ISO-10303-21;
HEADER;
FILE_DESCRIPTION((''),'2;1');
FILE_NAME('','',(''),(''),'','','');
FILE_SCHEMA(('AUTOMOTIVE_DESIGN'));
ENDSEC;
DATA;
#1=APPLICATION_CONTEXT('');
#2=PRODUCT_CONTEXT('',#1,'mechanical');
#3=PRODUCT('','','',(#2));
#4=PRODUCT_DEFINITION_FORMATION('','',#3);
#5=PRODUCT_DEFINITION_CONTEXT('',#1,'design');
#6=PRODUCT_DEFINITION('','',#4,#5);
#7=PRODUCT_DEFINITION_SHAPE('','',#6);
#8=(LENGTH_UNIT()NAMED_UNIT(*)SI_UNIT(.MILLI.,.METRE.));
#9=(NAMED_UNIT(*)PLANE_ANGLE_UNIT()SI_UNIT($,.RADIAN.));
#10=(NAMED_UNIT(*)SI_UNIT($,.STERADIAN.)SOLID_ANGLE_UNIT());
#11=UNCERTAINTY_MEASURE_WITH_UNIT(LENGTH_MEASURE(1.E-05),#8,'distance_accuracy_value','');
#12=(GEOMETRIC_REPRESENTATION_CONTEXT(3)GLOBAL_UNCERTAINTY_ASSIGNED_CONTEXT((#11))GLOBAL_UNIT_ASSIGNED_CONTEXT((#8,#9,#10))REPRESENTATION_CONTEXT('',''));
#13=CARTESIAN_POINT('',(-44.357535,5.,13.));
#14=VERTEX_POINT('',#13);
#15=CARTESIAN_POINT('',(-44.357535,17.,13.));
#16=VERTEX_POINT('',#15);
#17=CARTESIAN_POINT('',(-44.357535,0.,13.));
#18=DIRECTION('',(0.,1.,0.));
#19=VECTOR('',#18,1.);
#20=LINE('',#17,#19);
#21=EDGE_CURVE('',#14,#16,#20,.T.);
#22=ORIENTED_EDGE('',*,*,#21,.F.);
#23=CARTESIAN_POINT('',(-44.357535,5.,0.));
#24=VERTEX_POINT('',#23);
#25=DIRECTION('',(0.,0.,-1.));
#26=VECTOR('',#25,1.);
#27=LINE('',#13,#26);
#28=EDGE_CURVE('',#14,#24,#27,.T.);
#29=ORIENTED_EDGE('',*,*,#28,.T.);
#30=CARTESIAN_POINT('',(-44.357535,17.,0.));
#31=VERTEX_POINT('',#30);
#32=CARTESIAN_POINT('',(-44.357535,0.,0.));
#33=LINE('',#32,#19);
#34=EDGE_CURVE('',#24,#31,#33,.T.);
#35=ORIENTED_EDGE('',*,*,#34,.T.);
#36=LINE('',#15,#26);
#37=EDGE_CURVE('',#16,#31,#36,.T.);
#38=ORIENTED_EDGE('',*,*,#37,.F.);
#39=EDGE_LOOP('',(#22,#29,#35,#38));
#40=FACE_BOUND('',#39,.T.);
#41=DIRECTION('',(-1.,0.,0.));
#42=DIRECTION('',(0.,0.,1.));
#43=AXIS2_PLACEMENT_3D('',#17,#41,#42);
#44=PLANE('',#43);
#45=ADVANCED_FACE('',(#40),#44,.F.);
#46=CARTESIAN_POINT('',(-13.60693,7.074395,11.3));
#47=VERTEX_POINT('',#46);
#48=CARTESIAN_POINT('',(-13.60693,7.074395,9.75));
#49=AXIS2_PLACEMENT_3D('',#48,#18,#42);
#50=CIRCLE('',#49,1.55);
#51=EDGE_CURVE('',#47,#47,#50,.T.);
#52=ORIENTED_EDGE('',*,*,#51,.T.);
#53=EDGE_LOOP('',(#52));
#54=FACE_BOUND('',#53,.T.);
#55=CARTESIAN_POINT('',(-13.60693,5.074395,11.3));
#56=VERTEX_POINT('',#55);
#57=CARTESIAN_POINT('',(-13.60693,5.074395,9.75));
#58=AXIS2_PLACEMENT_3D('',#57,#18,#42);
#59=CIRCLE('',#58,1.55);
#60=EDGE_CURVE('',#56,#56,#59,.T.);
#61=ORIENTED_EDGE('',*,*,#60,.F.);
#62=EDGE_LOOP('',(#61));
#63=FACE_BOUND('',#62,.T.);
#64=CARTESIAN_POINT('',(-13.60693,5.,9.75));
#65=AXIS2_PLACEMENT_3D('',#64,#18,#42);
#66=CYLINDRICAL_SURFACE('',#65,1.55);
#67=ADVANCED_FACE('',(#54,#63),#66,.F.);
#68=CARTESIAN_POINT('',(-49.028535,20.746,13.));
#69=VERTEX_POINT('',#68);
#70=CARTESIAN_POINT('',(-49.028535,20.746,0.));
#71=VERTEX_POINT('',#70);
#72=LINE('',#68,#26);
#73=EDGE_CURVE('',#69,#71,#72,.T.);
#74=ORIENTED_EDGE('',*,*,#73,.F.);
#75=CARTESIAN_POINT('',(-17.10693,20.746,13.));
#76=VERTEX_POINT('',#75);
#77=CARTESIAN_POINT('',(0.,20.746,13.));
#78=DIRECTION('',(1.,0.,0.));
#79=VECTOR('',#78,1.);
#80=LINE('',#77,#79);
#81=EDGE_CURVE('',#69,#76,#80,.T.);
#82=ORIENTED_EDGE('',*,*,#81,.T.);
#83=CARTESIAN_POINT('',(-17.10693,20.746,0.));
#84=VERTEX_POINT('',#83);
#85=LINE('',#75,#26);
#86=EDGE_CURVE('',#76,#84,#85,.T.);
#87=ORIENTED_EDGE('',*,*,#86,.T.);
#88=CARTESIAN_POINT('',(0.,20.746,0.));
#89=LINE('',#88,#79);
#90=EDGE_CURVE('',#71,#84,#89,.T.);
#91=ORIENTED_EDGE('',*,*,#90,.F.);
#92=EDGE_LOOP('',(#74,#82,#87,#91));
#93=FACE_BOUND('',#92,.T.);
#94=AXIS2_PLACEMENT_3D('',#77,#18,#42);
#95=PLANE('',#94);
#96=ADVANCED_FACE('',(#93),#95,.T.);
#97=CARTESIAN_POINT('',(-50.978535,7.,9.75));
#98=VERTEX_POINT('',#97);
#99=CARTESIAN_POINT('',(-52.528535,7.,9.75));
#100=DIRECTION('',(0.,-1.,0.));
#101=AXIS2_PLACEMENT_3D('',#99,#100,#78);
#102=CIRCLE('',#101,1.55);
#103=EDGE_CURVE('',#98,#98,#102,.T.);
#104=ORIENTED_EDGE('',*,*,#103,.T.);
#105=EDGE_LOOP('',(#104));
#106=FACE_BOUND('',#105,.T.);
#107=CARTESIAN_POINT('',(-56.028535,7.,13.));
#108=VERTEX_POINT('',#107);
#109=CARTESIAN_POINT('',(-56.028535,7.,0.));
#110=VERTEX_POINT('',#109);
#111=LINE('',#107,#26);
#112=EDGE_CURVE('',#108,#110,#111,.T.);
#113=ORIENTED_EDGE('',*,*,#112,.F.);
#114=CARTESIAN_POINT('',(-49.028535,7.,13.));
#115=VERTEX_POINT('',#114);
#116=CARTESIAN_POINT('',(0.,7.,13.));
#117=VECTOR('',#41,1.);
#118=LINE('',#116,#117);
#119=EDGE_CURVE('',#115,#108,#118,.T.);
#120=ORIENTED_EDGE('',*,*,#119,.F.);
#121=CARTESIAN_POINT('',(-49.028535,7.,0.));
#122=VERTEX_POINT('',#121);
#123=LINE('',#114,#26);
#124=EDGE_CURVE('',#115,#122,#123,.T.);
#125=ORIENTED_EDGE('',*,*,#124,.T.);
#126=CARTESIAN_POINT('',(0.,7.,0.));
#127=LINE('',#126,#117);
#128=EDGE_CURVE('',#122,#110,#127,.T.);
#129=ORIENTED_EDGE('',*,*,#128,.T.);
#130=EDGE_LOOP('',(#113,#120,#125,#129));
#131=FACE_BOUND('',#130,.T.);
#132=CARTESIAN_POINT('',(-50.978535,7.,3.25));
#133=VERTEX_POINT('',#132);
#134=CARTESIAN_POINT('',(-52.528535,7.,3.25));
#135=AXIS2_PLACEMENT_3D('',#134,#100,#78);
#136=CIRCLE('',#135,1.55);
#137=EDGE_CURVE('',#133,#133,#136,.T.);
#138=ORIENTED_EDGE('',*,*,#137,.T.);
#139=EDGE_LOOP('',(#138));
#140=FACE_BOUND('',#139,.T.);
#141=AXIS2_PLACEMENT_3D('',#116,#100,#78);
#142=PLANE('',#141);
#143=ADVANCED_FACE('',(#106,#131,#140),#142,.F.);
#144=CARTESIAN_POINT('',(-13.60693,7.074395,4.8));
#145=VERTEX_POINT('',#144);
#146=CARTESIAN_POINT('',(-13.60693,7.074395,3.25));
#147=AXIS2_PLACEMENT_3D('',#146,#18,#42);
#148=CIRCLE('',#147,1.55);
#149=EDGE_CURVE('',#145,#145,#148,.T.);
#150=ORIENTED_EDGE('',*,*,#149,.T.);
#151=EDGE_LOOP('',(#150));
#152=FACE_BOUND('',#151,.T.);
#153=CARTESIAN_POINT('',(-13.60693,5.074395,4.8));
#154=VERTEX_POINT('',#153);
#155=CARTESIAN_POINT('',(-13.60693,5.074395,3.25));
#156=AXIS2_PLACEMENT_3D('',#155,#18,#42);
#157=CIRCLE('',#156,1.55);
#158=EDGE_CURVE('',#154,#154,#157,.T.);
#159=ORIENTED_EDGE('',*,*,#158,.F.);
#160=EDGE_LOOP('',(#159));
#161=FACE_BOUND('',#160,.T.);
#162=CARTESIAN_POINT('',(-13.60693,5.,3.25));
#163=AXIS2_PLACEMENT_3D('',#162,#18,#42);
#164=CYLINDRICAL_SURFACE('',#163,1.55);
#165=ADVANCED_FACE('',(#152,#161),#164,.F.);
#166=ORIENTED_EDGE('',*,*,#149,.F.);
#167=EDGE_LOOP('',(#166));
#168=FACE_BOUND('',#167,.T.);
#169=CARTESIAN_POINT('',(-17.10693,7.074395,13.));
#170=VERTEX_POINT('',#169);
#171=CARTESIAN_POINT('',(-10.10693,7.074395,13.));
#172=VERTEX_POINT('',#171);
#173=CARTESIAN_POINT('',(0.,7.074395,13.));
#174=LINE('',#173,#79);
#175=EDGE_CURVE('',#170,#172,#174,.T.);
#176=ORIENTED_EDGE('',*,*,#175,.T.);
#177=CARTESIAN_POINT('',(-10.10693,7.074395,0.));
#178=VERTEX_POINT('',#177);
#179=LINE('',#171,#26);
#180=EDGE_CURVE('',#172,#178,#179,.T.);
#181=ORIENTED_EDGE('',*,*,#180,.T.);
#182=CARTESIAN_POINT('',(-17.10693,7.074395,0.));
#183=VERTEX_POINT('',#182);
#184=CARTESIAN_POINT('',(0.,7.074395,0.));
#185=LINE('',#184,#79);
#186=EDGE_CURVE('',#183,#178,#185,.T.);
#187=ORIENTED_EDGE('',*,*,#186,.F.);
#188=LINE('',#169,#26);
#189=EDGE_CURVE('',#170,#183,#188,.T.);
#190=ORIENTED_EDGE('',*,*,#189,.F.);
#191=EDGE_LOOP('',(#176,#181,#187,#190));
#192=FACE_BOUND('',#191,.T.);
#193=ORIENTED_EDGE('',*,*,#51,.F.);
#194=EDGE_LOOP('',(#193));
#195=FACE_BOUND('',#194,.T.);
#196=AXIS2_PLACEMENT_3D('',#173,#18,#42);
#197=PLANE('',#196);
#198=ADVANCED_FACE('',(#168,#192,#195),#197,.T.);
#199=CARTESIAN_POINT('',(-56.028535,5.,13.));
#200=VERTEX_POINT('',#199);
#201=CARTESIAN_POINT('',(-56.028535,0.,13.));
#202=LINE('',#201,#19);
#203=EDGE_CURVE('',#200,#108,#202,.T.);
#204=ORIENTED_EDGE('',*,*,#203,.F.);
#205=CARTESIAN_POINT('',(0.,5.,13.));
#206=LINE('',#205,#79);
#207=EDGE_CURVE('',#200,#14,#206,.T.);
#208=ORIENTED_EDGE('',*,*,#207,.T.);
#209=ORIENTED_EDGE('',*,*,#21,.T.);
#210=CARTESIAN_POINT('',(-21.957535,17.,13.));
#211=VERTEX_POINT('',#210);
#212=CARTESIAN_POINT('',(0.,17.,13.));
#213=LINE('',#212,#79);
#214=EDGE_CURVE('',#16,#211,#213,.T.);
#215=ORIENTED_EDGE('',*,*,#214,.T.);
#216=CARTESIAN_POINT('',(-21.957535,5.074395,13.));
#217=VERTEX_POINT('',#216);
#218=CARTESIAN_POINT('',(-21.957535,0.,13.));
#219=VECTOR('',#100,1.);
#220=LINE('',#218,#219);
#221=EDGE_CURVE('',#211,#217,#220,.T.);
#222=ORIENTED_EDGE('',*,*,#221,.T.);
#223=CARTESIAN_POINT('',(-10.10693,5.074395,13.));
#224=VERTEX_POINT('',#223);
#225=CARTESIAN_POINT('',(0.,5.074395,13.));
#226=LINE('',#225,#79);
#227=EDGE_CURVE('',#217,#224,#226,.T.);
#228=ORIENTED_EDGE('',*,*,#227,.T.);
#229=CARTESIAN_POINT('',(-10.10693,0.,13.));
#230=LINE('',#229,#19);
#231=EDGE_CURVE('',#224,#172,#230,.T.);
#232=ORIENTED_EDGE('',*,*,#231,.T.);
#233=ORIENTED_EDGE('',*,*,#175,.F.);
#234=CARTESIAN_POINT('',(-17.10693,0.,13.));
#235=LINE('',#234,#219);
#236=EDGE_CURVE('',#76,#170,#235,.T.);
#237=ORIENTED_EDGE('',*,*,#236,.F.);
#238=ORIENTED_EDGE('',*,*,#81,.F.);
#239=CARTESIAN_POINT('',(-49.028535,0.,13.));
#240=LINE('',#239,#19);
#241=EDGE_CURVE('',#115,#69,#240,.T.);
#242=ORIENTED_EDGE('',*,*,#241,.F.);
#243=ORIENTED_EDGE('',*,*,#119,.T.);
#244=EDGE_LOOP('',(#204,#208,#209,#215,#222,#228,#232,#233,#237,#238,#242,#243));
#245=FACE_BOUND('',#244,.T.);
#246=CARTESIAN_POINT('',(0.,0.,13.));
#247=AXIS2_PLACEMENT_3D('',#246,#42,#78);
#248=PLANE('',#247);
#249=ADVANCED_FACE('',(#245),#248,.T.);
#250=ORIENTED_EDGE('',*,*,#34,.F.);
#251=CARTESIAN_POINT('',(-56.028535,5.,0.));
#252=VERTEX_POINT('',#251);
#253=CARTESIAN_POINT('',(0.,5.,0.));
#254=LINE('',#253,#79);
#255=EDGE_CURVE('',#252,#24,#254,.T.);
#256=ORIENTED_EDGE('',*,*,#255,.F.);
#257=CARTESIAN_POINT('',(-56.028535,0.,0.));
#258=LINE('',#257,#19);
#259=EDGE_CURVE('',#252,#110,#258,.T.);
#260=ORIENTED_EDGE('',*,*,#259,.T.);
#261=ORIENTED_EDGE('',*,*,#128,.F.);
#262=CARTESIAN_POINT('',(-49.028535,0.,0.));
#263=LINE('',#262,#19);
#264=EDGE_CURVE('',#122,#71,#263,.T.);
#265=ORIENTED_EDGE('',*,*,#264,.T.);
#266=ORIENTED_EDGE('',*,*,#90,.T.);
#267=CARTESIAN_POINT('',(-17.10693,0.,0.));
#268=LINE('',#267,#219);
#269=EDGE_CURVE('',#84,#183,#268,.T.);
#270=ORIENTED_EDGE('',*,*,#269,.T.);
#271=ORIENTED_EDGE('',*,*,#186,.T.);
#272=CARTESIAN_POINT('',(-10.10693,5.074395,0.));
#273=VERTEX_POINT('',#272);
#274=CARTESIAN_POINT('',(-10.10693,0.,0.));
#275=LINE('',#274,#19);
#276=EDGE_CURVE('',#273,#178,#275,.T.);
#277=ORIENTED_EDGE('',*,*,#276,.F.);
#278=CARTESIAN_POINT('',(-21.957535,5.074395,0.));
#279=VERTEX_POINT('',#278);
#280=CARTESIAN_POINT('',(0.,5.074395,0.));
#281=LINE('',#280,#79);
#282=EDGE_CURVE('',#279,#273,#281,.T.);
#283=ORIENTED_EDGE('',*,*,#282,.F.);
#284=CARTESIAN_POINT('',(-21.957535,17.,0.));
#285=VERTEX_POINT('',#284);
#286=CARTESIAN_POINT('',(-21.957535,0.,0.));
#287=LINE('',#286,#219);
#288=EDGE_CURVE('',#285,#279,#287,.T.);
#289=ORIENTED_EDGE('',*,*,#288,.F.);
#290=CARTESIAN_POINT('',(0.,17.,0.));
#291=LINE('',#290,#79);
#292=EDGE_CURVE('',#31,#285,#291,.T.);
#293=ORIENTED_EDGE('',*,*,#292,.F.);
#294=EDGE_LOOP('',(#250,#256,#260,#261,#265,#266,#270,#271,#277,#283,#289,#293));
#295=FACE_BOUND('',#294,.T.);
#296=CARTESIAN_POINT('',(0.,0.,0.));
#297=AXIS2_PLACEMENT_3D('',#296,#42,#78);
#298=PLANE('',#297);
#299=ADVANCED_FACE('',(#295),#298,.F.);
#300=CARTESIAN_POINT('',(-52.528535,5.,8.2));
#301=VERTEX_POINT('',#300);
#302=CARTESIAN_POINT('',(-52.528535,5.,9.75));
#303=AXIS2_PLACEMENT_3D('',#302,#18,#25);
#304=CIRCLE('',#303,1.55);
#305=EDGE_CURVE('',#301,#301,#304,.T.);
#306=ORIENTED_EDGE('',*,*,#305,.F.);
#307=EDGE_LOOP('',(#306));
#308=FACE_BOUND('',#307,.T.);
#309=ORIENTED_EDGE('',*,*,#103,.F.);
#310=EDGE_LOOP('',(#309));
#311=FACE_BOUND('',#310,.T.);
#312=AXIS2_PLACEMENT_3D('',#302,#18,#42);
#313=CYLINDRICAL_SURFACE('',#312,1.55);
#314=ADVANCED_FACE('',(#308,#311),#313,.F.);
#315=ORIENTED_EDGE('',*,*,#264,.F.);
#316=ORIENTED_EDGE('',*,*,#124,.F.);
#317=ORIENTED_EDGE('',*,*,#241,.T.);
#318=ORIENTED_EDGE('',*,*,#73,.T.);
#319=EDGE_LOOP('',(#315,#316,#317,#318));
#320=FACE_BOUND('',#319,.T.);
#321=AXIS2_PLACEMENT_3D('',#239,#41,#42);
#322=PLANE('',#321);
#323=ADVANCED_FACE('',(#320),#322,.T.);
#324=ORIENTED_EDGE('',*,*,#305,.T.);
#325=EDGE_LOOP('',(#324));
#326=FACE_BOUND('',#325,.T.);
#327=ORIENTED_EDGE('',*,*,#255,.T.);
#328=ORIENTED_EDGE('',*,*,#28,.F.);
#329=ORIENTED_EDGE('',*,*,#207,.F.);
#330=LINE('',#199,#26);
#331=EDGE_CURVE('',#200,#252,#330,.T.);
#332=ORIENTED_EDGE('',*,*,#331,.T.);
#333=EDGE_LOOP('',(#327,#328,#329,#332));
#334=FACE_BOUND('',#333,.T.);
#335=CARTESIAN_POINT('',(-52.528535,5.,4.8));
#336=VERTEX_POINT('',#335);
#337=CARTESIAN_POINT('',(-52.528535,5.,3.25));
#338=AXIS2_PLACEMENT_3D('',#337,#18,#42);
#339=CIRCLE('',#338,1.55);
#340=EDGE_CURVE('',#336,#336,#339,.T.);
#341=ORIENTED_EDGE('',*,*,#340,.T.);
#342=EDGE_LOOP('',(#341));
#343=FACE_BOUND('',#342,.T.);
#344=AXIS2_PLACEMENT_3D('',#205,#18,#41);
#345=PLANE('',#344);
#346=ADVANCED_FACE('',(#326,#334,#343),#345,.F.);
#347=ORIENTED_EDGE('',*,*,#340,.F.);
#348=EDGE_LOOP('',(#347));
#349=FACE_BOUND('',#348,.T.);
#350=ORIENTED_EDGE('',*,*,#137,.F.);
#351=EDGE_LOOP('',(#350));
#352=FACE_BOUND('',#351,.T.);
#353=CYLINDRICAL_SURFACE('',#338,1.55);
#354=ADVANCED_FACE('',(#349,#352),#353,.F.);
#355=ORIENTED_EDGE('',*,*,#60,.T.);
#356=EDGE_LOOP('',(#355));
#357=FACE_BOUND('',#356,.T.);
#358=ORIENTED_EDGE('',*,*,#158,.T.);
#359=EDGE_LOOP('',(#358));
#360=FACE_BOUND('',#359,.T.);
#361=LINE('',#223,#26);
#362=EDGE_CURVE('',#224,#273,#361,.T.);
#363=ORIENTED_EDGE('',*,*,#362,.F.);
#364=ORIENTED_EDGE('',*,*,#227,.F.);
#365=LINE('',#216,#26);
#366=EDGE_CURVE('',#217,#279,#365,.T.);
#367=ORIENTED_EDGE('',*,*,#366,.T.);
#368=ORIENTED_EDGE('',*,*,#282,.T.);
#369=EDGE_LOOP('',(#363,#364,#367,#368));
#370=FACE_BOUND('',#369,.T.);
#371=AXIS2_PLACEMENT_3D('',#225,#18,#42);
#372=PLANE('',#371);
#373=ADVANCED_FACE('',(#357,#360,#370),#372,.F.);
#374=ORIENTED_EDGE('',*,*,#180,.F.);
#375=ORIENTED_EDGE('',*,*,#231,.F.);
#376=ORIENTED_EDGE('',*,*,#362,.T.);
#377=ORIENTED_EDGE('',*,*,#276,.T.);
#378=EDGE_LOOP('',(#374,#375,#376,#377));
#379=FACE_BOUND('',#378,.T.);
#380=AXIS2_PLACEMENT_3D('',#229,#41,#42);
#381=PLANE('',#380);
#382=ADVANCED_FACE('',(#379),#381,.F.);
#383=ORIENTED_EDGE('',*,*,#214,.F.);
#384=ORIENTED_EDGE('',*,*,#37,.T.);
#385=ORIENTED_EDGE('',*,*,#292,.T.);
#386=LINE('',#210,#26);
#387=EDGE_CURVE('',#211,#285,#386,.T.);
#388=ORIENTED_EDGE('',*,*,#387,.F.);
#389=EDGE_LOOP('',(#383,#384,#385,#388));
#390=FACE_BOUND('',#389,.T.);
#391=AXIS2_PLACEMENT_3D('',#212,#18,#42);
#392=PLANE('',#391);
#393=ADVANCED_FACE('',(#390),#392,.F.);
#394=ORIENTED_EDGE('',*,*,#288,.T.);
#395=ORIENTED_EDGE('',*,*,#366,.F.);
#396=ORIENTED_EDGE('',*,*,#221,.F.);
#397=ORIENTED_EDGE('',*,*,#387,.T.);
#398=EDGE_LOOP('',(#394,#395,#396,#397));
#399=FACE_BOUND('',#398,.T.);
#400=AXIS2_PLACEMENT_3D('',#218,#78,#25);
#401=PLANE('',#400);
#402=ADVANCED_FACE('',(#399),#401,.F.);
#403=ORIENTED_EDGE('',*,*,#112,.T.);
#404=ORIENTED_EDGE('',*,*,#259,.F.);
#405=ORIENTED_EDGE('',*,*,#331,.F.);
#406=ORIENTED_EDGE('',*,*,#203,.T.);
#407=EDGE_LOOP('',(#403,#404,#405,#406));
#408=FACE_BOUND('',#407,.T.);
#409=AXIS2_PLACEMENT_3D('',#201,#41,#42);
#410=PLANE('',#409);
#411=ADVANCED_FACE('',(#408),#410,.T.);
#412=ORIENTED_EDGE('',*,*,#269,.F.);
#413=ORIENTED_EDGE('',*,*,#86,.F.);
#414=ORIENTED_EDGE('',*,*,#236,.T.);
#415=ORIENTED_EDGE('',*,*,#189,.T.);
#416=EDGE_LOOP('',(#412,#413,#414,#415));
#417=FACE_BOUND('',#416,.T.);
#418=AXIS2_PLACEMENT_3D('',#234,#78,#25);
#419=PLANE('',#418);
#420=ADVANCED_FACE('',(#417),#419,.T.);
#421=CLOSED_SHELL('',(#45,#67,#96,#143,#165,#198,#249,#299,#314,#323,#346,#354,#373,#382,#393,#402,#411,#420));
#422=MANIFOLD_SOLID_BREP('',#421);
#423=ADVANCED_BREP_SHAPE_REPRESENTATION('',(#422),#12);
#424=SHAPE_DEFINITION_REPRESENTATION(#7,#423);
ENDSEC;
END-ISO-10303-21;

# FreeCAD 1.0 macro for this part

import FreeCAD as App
import Part
import Sketcher
from FreeCAD import Vector

doc = App.newDocument("Part")
body = doc.addObject("PartDesign::Body", "Body")

# Sketch on XY plane
sketch1 = doc.addObject("Sketcher::SketchObject", "Sketch")
body.addObject(sketch1)
sketch1.AttachmentSupport = (doc.XY_Plane, [""])
sketch1.MapMode = "FlatFace"
sketch1.addGeometry([
    Part.LineSegment(Vector(-49, 20.7, 0), Vector(-49, 7, 0)),  # 0
    Part.LineSegment(Vector(-49, 7, 0), Vector(-56, 7, 0)),  # 1
    Part.LineSegment(Vector(-56, 7, 0), Vector(-56, 5, 0)),  # 2
    Part.LineSegment(Vector(-56, 5, 0), Vector(-44.4, 5, 0)),  # 3
    Part.LineSegment(Vector(-44.4, 5, 0), Vector(-44.4, 17, 0)),  # 4
    Part.LineSegment(Vector(-44.4, 17, 0), Vector(-22, 17, 0)),  # 5
    Part.LineSegment(Vector(-22, 17, 0), Vector(-22, 5.1, 0)),  # 6
    Part.LineSegment(Vector(-22, 5.1, 0), Vector(-10.1, 5.1, 0)),  # 7
    Part.LineSegment(Vector(-10.1, 5.1, 0), Vector(-10.1, 7.1, 0)),  # 8
    Part.LineSegment(Vector(-10.1, 7.1, 0), Vector(-17.1, 7.1, 0)),  # 9
    Part.LineSegment(Vector(-17.1, 7.1, 0), Vector(-17.1, 20.7, 0)),  # 10
    Part.LineSegment(Vector(-17.1, 20.7, 0), Vector(-49, 20.7, 0)),  # 11
], False)
sketch1.addConstraint([
    Sketcher.Constraint("Coincident", 0, 2, 1, 1),
    Sketcher.Constraint("Coincident", 1, 2, 2, 1),
    Sketcher.Constraint("Coincident", 2, 2, 3, 1),
    Sketcher.Constraint("Coincident", 3, 2, 4, 1),
    Sketcher.Constraint("Coincident", 4, 2, 5, 1),
    Sketcher.Constraint("Coincident", 5, 2, 6, 1),
    Sketcher.Constraint("Coincident", 6, 2, 7, 1),
    Sketcher.Constraint("Coincident", 7, 2, 8, 1),
    Sketcher.Constraint("Coincident", 8, 2, 9, 1),
    Sketcher.Constraint("Coincident", 9, 2, 10, 1),
    Sketcher.Constraint("Coincident", 10, 2, 11, 1),
    Sketcher.Constraint("Coincident", 11, 2, 0, 1),
    Sketcher.Constraint("Vertical", 0),
    Sketcher.Constraint("Horizontal", 1),
    Sketcher.Constraint("Vertical", 2),
    Sketcher.Constraint("Horizontal", 3),
    Sketcher.Constraint("Vertical", 4),
    Sketcher.Constraint("Horizontal", 5),
    Sketcher.Constraint("Vertical", 6),
    Sketcher.Constraint("Horizontal", 7),
    Sketcher.Constraint("Vertical", 8),
    Sketcher.Constraint("Horizontal", 9),
    Sketcher.Constraint("Vertical", 10),
    Sketcher.Constraint("Horizontal", 11),
    Sketcher.Constraint("Equal", 1, 9),
    Sketcher.Constraint("Equal", 2, 8),
    Sketcher.Constraint("DistanceX", 1, 2, 1, 1, 7.0),
    Sketcher.Constraint("DistanceY", 2, 2, 2, 1, 2.0),
    Sketcher.Constraint("DistanceY", 4, 1, 4, 2, 12.0),
    Sketcher.Constraint("DistanceX", 5, 1, 5, 2, 22.4),
    Sketcher.Constraint("DistanceY", -1, 1, 0, 2, 7.0),
    Sketcher.Constraint("DistanceX", 3, 1, 3, 2, 11.671),
    Sketcher.Constraint("DistanceY", 0, 2, 0, 1, 13.746),
    Sketcher.Constraint("DistanceX", 7, 1, 7, 2, 11.850605),
    Sketcher.Constraint("DistanceY", 6, 2, 6, 1, 11.925605),
    Sketcher.Constraint("DistanceX", 7, 2, -1, 1, 10.10693),
])
pad1 = doc.addObject("PartDesign::Pad", "Pad")
body.addObject(pad1)
pad1.Profile = sketch1
pad1.Length = 13

# Sketch on XZ plane
sketch2 = doc.addObject("Sketcher::SketchObject", "Sketch001")
body.addObject(sketch2)
sketch2.AttachmentSupport = (doc.XZ_Plane, [""])
sketch2.MapMode = "FlatFace"
sketch2.AttachmentOffset = App.Placement(Vector(0, 0, -7.074395), App.Rotation())
sketch2.addGeometry([
    Part.Circle(Vector(-13.6, 9.8, 0), Vector(0, 0, 1), 1.6),
    Part.Circle(Vector(-13.6, 3.2, 0), Vector(0, 0, 1), 1.6),
    Part.Circle(Vector(-52.5, 3.2, 0), Vector(0, 0, 1), 1.6),
    Part.Circle(Vector(-52.5, 9.8, 0), Vector(0, 0, 1), 1.6),
], False)
sketch2.addConstraint([
    Sketcher.Constraint("Equal", 0, 1),
    Sketcher.Constraint("Equal", 1, 2),
    Sketcher.Constraint("Equal", 2, 3),
    Sketcher.Constraint("Horizontal", 1, 3, 2, 3),
    Sketcher.Constraint("Horizontal", 0, 3, 3, 3),
    Sketcher.Constraint("Vertical", 0, 3, 1, 3),
    Sketcher.Constraint("Vertical", 2, 3, 3, 3),
    Sketcher.Constraint("Diameter", 0, 3.1),
    Sketcher.Constraint("DistanceY", 1, 3, 0, 3, 6.5),
    Sketcher.Constraint("DistanceY", -1, 1, 0, 3, 9.75),
    Sketcher.Constraint("DistanceX", 0, 3, -1, 1, 13.60693),
    Sketcher.Constraint("DistanceX", 2, 3, -1, 1, 52.528535),
])
pocket1 = doc.addObject("PartDesign::Pocket", "Pocket")
body.addObject(pocket1)
pocket1.Profile = sketch2
pocket1.Type = "ThroughAll"
pocket1.Midplane = True

doc.recompute()
